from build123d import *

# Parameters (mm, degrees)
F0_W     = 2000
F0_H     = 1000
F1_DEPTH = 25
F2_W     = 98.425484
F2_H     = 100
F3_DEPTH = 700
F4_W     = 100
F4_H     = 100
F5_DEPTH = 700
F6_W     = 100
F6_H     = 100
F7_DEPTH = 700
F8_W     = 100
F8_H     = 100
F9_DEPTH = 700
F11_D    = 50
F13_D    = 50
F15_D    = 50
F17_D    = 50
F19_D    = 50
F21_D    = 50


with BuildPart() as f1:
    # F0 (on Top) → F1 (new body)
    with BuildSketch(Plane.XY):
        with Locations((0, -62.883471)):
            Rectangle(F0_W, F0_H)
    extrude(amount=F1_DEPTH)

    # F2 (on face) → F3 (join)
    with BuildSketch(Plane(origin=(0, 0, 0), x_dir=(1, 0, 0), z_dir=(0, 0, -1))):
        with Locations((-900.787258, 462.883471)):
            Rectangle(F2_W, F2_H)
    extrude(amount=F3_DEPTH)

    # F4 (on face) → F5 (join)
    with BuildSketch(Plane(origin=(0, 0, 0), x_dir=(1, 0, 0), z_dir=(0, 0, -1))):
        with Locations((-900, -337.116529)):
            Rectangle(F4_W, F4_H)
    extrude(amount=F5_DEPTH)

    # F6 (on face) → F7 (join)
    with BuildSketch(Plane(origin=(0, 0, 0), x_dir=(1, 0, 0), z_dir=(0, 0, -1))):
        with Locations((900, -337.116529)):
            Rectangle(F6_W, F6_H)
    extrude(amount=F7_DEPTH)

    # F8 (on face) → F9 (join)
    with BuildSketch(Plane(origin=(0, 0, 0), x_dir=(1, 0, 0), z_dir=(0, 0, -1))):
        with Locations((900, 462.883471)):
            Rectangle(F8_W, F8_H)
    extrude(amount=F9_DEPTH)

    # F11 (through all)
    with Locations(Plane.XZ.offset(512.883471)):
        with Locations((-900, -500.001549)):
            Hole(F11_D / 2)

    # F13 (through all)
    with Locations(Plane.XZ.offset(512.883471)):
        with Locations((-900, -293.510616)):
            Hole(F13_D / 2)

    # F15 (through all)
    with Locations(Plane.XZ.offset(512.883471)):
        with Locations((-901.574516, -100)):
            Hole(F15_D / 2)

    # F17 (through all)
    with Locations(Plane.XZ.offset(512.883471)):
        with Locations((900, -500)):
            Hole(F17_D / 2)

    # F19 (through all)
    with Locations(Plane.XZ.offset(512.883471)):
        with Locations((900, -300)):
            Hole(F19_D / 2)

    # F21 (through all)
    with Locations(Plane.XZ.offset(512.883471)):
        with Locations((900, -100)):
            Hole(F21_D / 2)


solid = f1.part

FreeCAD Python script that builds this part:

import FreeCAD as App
import Part
import Sketcher
from FreeCAD import Vector
Q = App.Units.Quantity


def add_polygon(sketch, points):
    """Adds a closed chain of lines whose ends are joined by coincident constraints."""
    first, n = sketch.GeometryCount, len(points)
    for a, b in zip(points, points[1:] + points[:1]):
        sketch.addGeometry(Part.LineSegment(App.Vector(*a, 0), App.Vector(*b, 0)), False)
    for i in range(n):
        sketch.addConstraint(Sketcher.Constraint("Coincident", first + i, 2, first + (i + 1) % n, 1))

doc = App.newDocument("Part")
body = doc.addObject("PartDesign::Body", "Body")

# Sketch on XY plane
sketch1 = doc.addObject("Sketcher::SketchObject", "Sketch")
body.addObject(sketch1)
sketch1.AttachmentSupport = (doc.XY_Plane, [""])
sketch1.MapMode = "FlatFace"
add_polygon(sketch1, [(-1000, 437), (-1000, -563), (1000, -563), (1000, 437)])  # lines 0-3
sketch1.addConstraint([
    Sketcher.Constraint("Vertical", 0),
    Sketcher.Constraint("Horizontal", 1),
    Sketcher.Constraint("Vertical", 2),
    Sketcher.Constraint("Horizontal", 3),
    Sketcher.Constraint("DistanceX", 1, 1, 1, 2, Q("2000 mm")),
    Sketcher.Constraint("DistanceY", 0, 2, 0, 1, Q("1000 mm")),
    Sketcher.Constraint("DistanceX", 0, 2, -1, 1, Q("1000 mm")),
    Sketcher.Constraint("DistanceY", 0, 2, -1, 1, Q("562.883471 mm")),
])
pad1 = doc.addObject("PartDesign::Pad", "Pad")
body.addObject(pad1)
pad1.Profile = sketch1
pad1.Length = 25

# Sketch on XY plane
sketch2 = doc.addObject("Sketcher::SketchObject", "Sketch001")
body.addObject(sketch2)
sketch2.AttachmentSupport = (doc.XY_Plane, [""])
sketch2.MapMode = "FlatFace"
add_polygon(sketch2, [(-950, -513), (-950, -413), (-852, -413), (-852, -513)])  # lines 0-3
sketch2.addConstraint([
    Sketcher.Constraint("Vertical", 0),
    Sketcher.Constraint("Horizontal", 1),
    Sketcher.Constraint("Vertical", 2),
    Sketcher.Constraint("Horizontal", 3),
    Sketcher.Constraint("DistanceY", 0, 1, 0, 2, Q("100 mm")),
    Sketcher.Constraint("DistanceX", 0, 2, -1, 1, Q("950 mm")),
    Sketcher.Constraint("DistanceX", 1, 1, 1, 2, Q("98.425484 mm")),
    Sketcher.Constraint("DistanceY", 0, 2, -1, 1, Q("412.883471 mm")),
])
pad2 = doc.addObject("PartDesign::Pad", "Pad001")
body.addObject(pad2)
pad2.Profile = sketch2
pad2.Length = 700
pad2.Reversed = True

# Sketch on XY plane
sketch3 = doc.addObject("Sketcher::SketchObject", "Sketch002")
body.addObject(sketch3)
sketch3.AttachmentSupport = (doc.XY_Plane, [""])
sketch3.MapMode = "FlatFace"
add_polygon(sketch3, [(-950, 287), (-950, 387), (-850, 387), (-850, 287)])  # lines 0-3
sketch3.addConstraint([
    Sketcher.Constraint("Vertical", 0),
    Sketcher.Constraint("Horizontal", 1),
    Sketcher.Constraint("Vertical", 2),
    Sketcher.Constraint("Horizontal", 3),
    Sketcher.Constraint("Equal", 3, 0),
    Sketcher.Constraint("DistanceX", 1, 1, 1, 2, Q("100 mm")),
    Sketcher.Constraint("DistanceX", 0, 2, -1, 1, Q("950 mm")),
    Sketcher.Constraint("DistanceY", -1, 1, 0, 2, Q("387.116529 mm")),
])
pad3 = doc.addObject("PartDesign::Pad", "Pad002")
body.addObject(pad3)
pad3.Profile = sketch3
pad3.Length = 700
pad3.Reversed = True

# Sketch on XY plane
sketch4 = doc.addObject("Sketcher::SketchObject", "Sketch003")
body.addObject(sketch4)
sketch4.AttachmentSupport = (doc.XY_Plane, [""])
sketch4.MapMode = "FlatFace"
add_polygon(sketch4, [(850, 287), (850, 387), (950, 387), (950, 287)])  # lines 0-3
sketch4.addConstraint([
    Sketcher.Constraint("Vertical", 0),
    Sketcher.Constraint("Horizontal", 1),
    Sketcher.Constraint("Vertical", 2),
    Sketcher.Constraint("Horizontal", 3),
    Sketcher.Constraint("Equal", 3, 0),
    Sketcher.Constraint("DistanceX", 1, 1, 1, 2, Q("100 mm")),
    Sketcher.Constraint("DistanceX", -1, 1, 0, 2, Q("850 mm")),
    Sketcher.Constraint("DistanceY", -1, 1, 0, 2, Q("387.116529 mm")),
])
pad4 = doc.addObject("PartDesign::Pad", "Pad003")
body.addObject(pad4)
pad4.Profile = sketch4
pad4.Length = 700
pad4.Reversed = True

# Sketch on XY plane
sketch5 = doc.addObject("Sketcher::SketchObject", "Sketch004")
body.addObject(sketch5)
sketch5.AttachmentSupport = (doc.XY_Plane, [""])
sketch5.MapMode = "FlatFace"
add_polygon(sketch5, [(850, -513), (850, -413), (950, -413), (950, -513)])  # lines 0-3
sketch5.addConstraint([
    Sketcher.Constraint("Vertical", 0),
    Sketcher.Constraint("Horizontal", 1),
    Sketcher.Constraint("Vertical", 2),
    Sketcher.Constraint("Horizontal", 3),
    Sketcher.Constraint("Equal", 3, 0),
    Sketcher.Constraint("DistanceX", 1, 1, 1, 2, Q("100 mm")),
    Sketcher.Constraint("DistanceX", -1, 1, 0, 2, Q("850 mm")),
    Sketcher.Constraint("DistanceY", 0, 2, -1, 1, Q("412.883471 mm")),
])
pad5 = doc.addObject("PartDesign::Pad", "Pad004")
body.addObject(pad5)
pad5.Profile = sketch5
pad5.Length = 700
pad5.Reversed = True

# Sketch on XZ plane
sketch6 = doc.addObject("Sketcher::SketchObject", "Sketch005")
body.addObject(sketch6)
sketch6.AttachmentSupport = (doc.XZ_Plane, [""])
sketch6.MapMode = "FlatFace"
sketch6.AttachmentOffset = App.Placement(Vector(0, 0, 512.883471), App.Rotation())
sketch6.addGeometry(Part.Circle(Vector(-900, -500, 0), Vector(0, 0, 1), 25), False)
sketch6.addConstraint([
    Sketcher.Constraint("Diameter", 0, Q("50 mm")),
    Sketcher.Constraint("DistanceX", 0, 3, -1, 1, Q("900 mm")),
    Sketcher.Constraint("DistanceY", 0, 3, -1, 1, Q("500.001549 mm")),
])
doc.recompute()
hole = doc.addObject("PartDesign::Hole", "Hole")
body.addObject(hole)
hole.Profile = sketch6
hole.ThreadType = "None"
hole.Diameter = 50
hole.DepthType = "ThroughAll"

# Sketch on XZ plane
sketch7 = doc.addObject("Sketcher::SketchObject", "Sketch006")
body.addObject(sketch7)
sketch7.AttachmentSupport = (doc.XZ_Plane, [""])
sketch7.MapMode = "FlatFace"
sketch7.AttachmentOffset = App.Placement(Vector(0, 0, 512.883471), App.Rotation())
sketch7.addGeometry(Part.Circle(Vector(-900, -294, 0), Vector(0, 0, 1), 25), False)
sketch7.addConstraint([
    Sketcher.Constraint("Diameter", 0, Q("50 mm")),
    Sketcher.Constraint("DistanceX", 0, 3, -1, 1, Q("900 mm")),
    Sketcher.Constraint("DistanceY", 0, 3, -1, 1, Q("293.510616 mm")),
])
doc.recompute()
hole2 = doc.addObject("PartDesign::Hole", "Hole001")
body.addObject(hole2)
hole2.Profile = sketch7
hole2.ThreadType = "None"
hole2.Diameter = 50
hole2.DepthType = "ThroughAll"

# Sketch on XZ plane
sketch8 = doc.addObject("Sketcher::SketchObject", "Sketch007")
body.addObject(sketch8)
sketch8.AttachmentSupport = (doc.XZ_Plane, [""])
sketch8.MapMode = "FlatFace"
sketch8.AttachmentOffset = App.Placement(Vector(0, 0, 512.883471), App.Rotation())
sketch8.addGeometry(Part.Circle(Vector(-902, -100, 0), Vector(0, 0, 1), 25), False)
sketch8.addConstraint([
    Sketcher.Constraint("Diameter", 0, Q("50 mm")),
    Sketcher.Constraint("DistanceY", 0, 3, -1, 1, Q("100 mm")),
    Sketcher.Constraint("DistanceX", 0, 3, -1, 1, Q("901.574516 mm")),
])
doc.recompute()
hole3 = doc.addObject("PartDesign::Hole", "Hole002")
body.addObject(hole3)
hole3.Profile = sketch8
hole3.ThreadType = "None"
hole3.Diameter = 50
hole3.DepthType = "ThroughAll"

# Sketch on XZ plane
sketch9 = doc.addObject("Sketcher::SketchObject", "Sketch008")
body.addObject(sketch9)
sketch9.AttachmentSupport = (doc.XZ_Plane, [""])
sketch9.MapMode = "FlatFace"
sketch9.AttachmentOffset = App.Placement(Vector(0, 0, 512.883471), App.Rotation())
sketch9.addGeometry(Part.Circle(Vector(900, -500, 0), Vector(0, 0, 1), 25), False)
sketch9.addConstraint([
    Sketcher.Constraint("Diameter", 0, Q("50 mm")),
    Sketcher.Constraint("DistanceX", -1, 1, 0, 3, Q("900 mm")),
    Sketcher.Constraint("DistanceY", 0, 3, -1, 1, Q("500 mm")),
])
doc.recompute()
hole4 = doc.addObject("PartDesign::Hole", "Hole003")
body.addObject(hole4)
hole4.Profile = sketch9
hole4.ThreadType = "None"
hole4.Diameter = 50
hole4.DepthType = "ThroughAll"

# Sketch on XZ plane
sketch10 = doc.addObject("Sketcher::SketchObject", "Sketch009")
body.addObject(sketch10)
sketch10.AttachmentSupport = (doc.XZ_Plane, [""])
sketch10.MapMode = "FlatFace"
sketch10.AttachmentOffset = App.Placement(Vector(0, 0, 512.883471), App.Rotation())
sketch10.addGeometry(Part.Circle(Vector(900, -300, 0), Vector(0, 0, 1), 25), False)
sketch10.addConstraint([
    Sketcher.Constraint("Diameter", 0, Q("50 mm")),
    Sketcher.Constraint("DistanceX", -1, 1, 0, 3, Q("900 mm")),
    Sketcher.Constraint("DistanceY", 0, 3, -1, 1, Q("300 mm")),
])
doc.recompute()
hole5 = doc.addObject("PartDesign::Hole", "Hole004")
body.addObject(hole5)
hole5.Profile = sketch10
hole5.ThreadType = "None"
hole5.Diameter = 50
hole5.DepthType = "ThroughAll"

# Sketch on XZ plane
sketch11 = doc.addObject("Sketcher::SketchObject", "Sketch010")
body.addObject(sketch11)
sketch11.AttachmentSupport = (doc.XZ_Plane, [""])
sketch11.MapMode = "FlatFace"
sketch11.AttachmentOffset = App.Placement(Vector(0, 0, 512.883471), App.Rotation())
sketch11.addGeometry(Part.Circle(Vector(900, -100, 0), Vector(0, 0, 1), 25), False)
sketch11.addConstraint([
    Sketcher.Constraint("Diameter", 0, Q("50 mm")),
    Sketcher.Constraint("DistanceX", -1, 1, 0, 3, Q("900 mm")),
    Sketcher.Constraint("DistanceY", 0, 3, -1, 1, Q("100 mm")),
])
doc.recompute()
hole6 = doc.addObject("PartDesign::Hole", "Hole005")
body.addObject(hole6)
hole6.Profile = sketch11
hole6.ThreadType = "None"
hole6.Diameter = 50
hole6.DepthType = "ThroughAll"

doc.recompute()
